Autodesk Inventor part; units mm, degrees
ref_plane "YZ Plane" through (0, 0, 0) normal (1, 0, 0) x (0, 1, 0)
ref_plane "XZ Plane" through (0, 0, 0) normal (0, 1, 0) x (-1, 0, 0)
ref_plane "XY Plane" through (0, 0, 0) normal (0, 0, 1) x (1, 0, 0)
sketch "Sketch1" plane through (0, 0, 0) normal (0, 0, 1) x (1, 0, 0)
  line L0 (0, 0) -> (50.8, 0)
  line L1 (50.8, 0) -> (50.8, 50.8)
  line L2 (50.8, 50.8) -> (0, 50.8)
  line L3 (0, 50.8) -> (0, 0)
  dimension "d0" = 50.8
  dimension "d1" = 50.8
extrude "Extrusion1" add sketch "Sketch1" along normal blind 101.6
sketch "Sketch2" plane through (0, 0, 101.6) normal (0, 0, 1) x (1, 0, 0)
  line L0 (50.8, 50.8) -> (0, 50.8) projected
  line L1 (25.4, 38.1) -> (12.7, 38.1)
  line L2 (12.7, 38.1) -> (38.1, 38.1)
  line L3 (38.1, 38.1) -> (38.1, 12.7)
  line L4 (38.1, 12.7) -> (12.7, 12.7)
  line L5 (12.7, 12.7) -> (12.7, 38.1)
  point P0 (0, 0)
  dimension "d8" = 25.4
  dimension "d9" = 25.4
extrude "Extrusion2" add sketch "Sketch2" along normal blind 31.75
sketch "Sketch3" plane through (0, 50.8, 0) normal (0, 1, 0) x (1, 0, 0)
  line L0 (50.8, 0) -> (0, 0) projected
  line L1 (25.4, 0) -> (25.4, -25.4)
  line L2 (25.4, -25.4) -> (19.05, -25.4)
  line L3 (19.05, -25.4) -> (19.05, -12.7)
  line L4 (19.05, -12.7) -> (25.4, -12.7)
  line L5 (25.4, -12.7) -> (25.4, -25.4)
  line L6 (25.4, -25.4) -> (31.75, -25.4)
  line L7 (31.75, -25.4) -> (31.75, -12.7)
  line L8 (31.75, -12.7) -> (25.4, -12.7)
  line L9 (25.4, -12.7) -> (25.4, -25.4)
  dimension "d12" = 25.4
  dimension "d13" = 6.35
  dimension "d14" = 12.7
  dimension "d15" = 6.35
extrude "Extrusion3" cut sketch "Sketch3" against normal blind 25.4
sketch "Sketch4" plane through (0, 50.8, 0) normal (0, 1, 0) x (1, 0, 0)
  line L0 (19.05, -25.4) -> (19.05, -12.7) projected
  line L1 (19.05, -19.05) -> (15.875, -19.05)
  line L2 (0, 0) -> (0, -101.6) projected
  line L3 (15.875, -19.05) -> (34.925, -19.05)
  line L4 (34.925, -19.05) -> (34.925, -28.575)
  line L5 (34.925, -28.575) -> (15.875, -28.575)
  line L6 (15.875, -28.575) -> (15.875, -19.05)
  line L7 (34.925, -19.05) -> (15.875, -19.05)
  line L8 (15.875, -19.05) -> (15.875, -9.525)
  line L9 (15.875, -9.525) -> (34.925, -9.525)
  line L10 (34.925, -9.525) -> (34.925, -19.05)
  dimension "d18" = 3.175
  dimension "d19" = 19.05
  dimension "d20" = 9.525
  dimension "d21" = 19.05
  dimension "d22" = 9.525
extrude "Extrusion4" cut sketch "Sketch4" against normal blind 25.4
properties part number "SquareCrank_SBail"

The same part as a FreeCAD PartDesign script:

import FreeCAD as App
import Part
import Sketcher

V = App.Vector
Q = App.Units.Quantity

doc = App.newDocument("Part")
body = doc.addObject("PartDesign::Body", "Body")

sketch1 = body.newObject("Sketcher::SketchObject", "Sketch")
sketch1.AttachmentSupport = (doc.getObject("XY_Plane"), [""])
sketch1.MapMode = "FlatFace"
sketch1.addGeometry(Part.LineSegment(V(0, 50.8, 0), V(0, 0, 0)), False)
sketch1.addGeometry(Part.LineSegment(V(0, 0, 0), V(50.8, 0, 0)), False)
sketch1.addGeometry(Part.LineSegment(V(50.8, 0, 0), V(50.8, 50.8, 0)), False)
sketch1.addGeometry(Part.LineSegment(V(50.8, 50.8, 0), V(0, 50.8, 0)), False)
sketch1.addConstraint(Sketcher.Constraint("Coincident", 0, 2, 1, 1))
sketch1.addConstraint(Sketcher.Constraint("Coincident", 1, 2, 2, 1))
sketch1.addConstraint(Sketcher.Constraint("Coincident", 2, 2, 3, 1))
sketch1.addConstraint(Sketcher.Constraint("Coincident", 3, 2, 0, 1))
sketch1.addConstraint(Sketcher.Constraint("Vertical", 0))
sketch1.addConstraint(Sketcher.Constraint("Horizontal", 1))
sketch1.addConstraint(Sketcher.Constraint("Vertical", 2))
sketch1.addConstraint(Sketcher.Constraint("Horizontal", 3))
sketch1.addConstraint(Sketcher.Constraint("Coincident", 0, 2, -1, 1))
sketch1.addConstraint(Sketcher.Constraint("Equal", 3, 0))
sketch1.addConstraint(Sketcher.Constraint("DistanceX", 1, 1, 1, 2, Q("2 in")))
pad1 = body.newObject("PartDesign::Pad", "Pad")
pad1.Profile = sketch1
pad1.Length = Q("4 in")

sketch2 = body.newObject("Sketcher::SketchObject", "Sketch001")
sketch2.AttachmentSupport = (doc.getObject("XY_Plane"), [""])
sketch2.MapMode = "FlatFace"
sketch2.AttachmentOffset = App.Placement(V(0, 0, 4 * 25.4), App.Rotation())
sketch2.addGeometry(Part.LineSegment(V(38.1, 38.1, 0), V(12.7, 38.1, 0)), False)
sketch2.addGeometry(Part.LineSegment(V(12.7, 38.1, 0), V(12.7, 12.7, 0)), False)
sketch2.addGeometry(Part.LineSegment(V(12.7, 12.7, 0), V(38.1, 12.7, 0)), False)
sketch2.addGeometry(Part.LineSegment(V(38.1, 12.7, 0), V(38.1, 38.1, 0)), False)
sketch2.addConstraint(Sketcher.Constraint("Coincident", 0, 2, 1, 1))
sketch2.addConstraint(Sketcher.Constraint("Coincident", 1, 2, 2, 1))
sketch2.addConstraint(Sketcher.Constraint("Coincident", 2, 2, 3, 1))
sketch2.addConstraint(Sketcher.Constraint("Coincident", 3, 2, 0, 1))
sketch2.addConstraint(Sketcher.Constraint("Horizontal", 0))
sketch2.addConstraint(Sketcher.Constraint("Vertical", 1))
sketch2.addConstraint(Sketcher.Constraint("Horizontal", 2))
sketch2.addConstraint(Sketcher.Constraint("Vertical", 3))
sketch2.addConstraint(Sketcher.Constraint("Equal", 2, 1))
sketch2.addConstraint(Sketcher.Constraint("DistanceX", 0, 2, 0, 1, Q("1 in")))
sketch2.addConstraint(Sketcher.Constraint("DistanceX", -1, 1, 0, 2, Q("0.5 in")))
sketch2.addConstraint(Sketcher.Constraint("DistanceY", -1, 1, 0, 2, Q("1.5 in")))
pad2 = body.newObject("PartDesign::Pad", "Pad001")
pad2.Profile = sketch2
pad2.Length = Q("1.25 in")

sketch3 = body.newObject("Sketcher::SketchObject", "Sketch002")
sketch3.AttachmentSupport = (doc.getObject("XZ_Plane"), [""])
sketch3.MapMode = "FlatFace"
sketch3.AttachmentOffset = App.Placement(V(0, 0, -2 * 25.4), App.Rotation())
sketch3.addGeometry(Part.LineSegment(V(31.75, 12.7, 0), V(19.05, 12.7, 0)), False)
sketch3.addGeometry(Part.LineSegment(V(19.05, 12.7, 0), V(19.05, 25.4, 0)), False)
sketch3.addGeometry(Part.LineSegment(V(19.05, 25.4, 0), V(31.75, 25.4, 0)), False)
sketch3.addGeometry(Part.LineSegment(V(31.75, 25.4, 0), V(31.75, 12.7, 0)), False)
sketch3.addConstraint(Sketcher.Constraint("Coincident", 0, 2, 1, 1))
sketch3.addConstraint(Sketcher.Constraint("Coincident", 1, 2, 2, 1))
sketch3.addConstraint(Sketcher.Constraint("Coincident", 2, 2, 3, 1))
sketch3.addConstraint(Sketcher.Constraint("Coincident", 3, 2, 0, 1))
sketch3.addConstraint(Sketcher.Constraint("Horizontal", 0))
sketch3.addConstraint(Sketcher.Constraint("Vertical", 1))
sketch3.addConstraint(Sketcher.Constraint("Horizontal", 2))
sketch3.addConstraint(Sketcher.Constraint("Vertical", 3))
sketch3.addConstraint(Sketcher.Constraint("Equal", 2, 1))
sketch3.addConstraint(Sketcher.Constraint("DistanceX", 0, 2, 0, 1, Q("0.5 in")))
sketch3.addConstraint(Sketcher.Constraint("DistanceY", -1, 1, 1, 2, Q("1 in")))
sketch3.addConstraint(Sketcher.Constraint("DistanceX", -1, 1, 0, 2, Q("0.75 in")))
pocket1 = body.newObject("PartDesign::Pocket", "Pocket")
pocket1.Profile = sketch3
pocket1.Length = Q("1 in")
pocket1.Reversed = True

sketch4 = body.newObject("Sketcher::SketchObject", "Sketch003")
sketch4.AttachmentSupport = (doc.getObject("XZ_Plane"), [""])
sketch4.MapMode = "FlatFace"
sketch4.AttachmentOffset = App.Placement(V(0, 0, -2 * 25.4), App.Rotation())
sketch4.addGeometry(Part.LineSegment(V(34.925, 28.575, 0), V(34.925, 9.525, 0)), False)
sketch4.addGeometry(Part.LineSegment(V(34.925, 9.525, 0), V(15.875, 9.525, 0)), False)
sketch4.addGeometry(Part.LineSegment(V(15.875, 9.525, 0), V(15.875, 28.575, 0)), False)
sketch4.addGeometry(Part.LineSegment(V(15.875, 28.575, 0), V(34.925, 28.575, 0)), False)
sketch4.addConstraint(Sketcher.Constraint("Coincident", 0, 2, 1, 1))
sketch4.addConstraint(Sketcher.Constraint("Coincident", 1, 2, 2, 1))
sketch4.addConstraint(Sketcher.Constraint("Coincident", 2, 2, 3, 1))
sketch4.addConstraint(Sketcher.Constraint("Coincident", 3, 2, 0, 1))
sketch4.addConstraint(Sketcher.Constraint("Vertical", 0))
sketch4.addConstraint(Sketcher.Constraint("Horizontal", 1))
sketch4.addConstraint(Sketcher.Constraint("Vertical", 2))
sketch4.addConstraint(Sketcher.Constraint("Horizontal", 3))
sketch4.addConstraint(Sketcher.Constraint("Equal", 3, 0))
sketch4.addConstraint(Sketcher.Constraint("DistanceX", 1, 2, 1, 1, Q("0.75 in")))
sketch4.addConstraint(Sketcher.Constraint("DistanceY", -1, 1, 0, 2, Q("0.375 in")))
sketch4.addConstraint(Sketcher.Constraint("DistanceX", -1, 1, 0, 2, Q("1.375 in")))
pocket2 = body.newObject("PartDesign::Pocket", "Pocket001")
pocket2.Profile = sketch4
pocket2.Length = Q("1 in")
pocket2.Reversed = True

doc.recompute()
